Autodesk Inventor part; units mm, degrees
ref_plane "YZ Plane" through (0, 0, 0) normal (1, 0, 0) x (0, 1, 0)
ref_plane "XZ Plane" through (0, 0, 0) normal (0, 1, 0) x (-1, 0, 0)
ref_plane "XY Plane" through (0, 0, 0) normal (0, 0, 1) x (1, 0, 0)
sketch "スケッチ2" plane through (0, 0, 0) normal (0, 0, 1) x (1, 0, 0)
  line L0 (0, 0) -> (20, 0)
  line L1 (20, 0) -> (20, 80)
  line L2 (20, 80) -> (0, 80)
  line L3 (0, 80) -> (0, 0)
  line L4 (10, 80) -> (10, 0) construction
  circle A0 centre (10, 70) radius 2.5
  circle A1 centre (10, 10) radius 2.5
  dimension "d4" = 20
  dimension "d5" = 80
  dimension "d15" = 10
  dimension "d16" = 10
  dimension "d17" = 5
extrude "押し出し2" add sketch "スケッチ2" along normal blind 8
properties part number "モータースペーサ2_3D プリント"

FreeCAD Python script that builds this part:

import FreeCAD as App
import Part
import Sketcher
Q = App.Units.Quantity

doc = App.newDocument("Part")
params = doc.addObject("Spreadsheet::Sheet", "Params")
for row, (alias, value) in enumerate([
    ("sketch1_diameter", "5 mm"),
    ("sketch1_width", "20 mm"),
    ("sketch1_height", "80 mm"),
    ("pad1_length", "8 mm"),
], start=1):
    params.set(f"A{row}", alias)
    params.set(f"B{row}", "=" + value)
    params.setAlias(f"B{row}", alias)

body = doc.addObject("PartDesign::Body", "Body")

sketch1 = doc.addObject("Sketcher::SketchObject", "Sketch")
body.addObject(sketch1)
sketch1.AttachmentSupport = (doc.XY_Plane, [""])
sketch1.MapMode = "FlatFace"
sketch1.addGeometry([
    Part.LineSegment(App.Vector(0, 80, 0), App.Vector(0, 0, 0)),
    Part.LineSegment(App.Vector(0, 0, 0), App.Vector(20, 0, 0)),
    Part.LineSegment(App.Vector(20, 0, 0), App.Vector(20, 80, 0)),
    Part.LineSegment(App.Vector(20, 80, 0), App.Vector(0, 80, 0)),
    Part.Circle(App.Vector(10, 10, 0), App.Vector(0, 0, 1), 2.5),
    Part.Circle(App.Vector(10, 70, 0), App.Vector(0, 0, 1), 2.5),
], False)
sketch1.addConstraint([
    Sketcher.Constraint("Coincident", 0, 2, 1, 1),
    Sketcher.Constraint("Coincident", 1, 2, 2, 1),
    Sketcher.Constraint("Coincident", 2, 2, 3, 1),
    Sketcher.Constraint("Coincident", 3, 2, 0, 1),
    Sketcher.Constraint("Vertical", 0),
    Sketcher.Constraint("Horizontal", 1),
    Sketcher.Constraint("Vertical", 2),
    Sketcher.Constraint("Horizontal", 3),
    Sketcher.Constraint("Coincident", 0, 2, -1, 1),
    Sketcher.Constraint("Equal", 4, 5),
    Sketcher.Constraint("Vertical", 4, 3, 5, 3),
    Sketcher.Constraint("Diameter", 4, Q("5 mm")),
    Sketcher.Constraint("DistanceX", 1, 1, 1, 2, Q("20 mm")),
    Sketcher.Constraint("DistanceY", 0, 2, 0, 1, Q("80 mm")),
    Sketcher.Constraint("DistanceX", -1, 1, 4, 3, Q("10 mm")),
    Sketcher.Constraint("DistanceY", -1, 1, 4, 3, Q("10 mm")),
    Sketcher.Constraint("DistanceY", 5, 3, 2, 2, Q("10 mm")),
])
sketch1.setExpression("Constraints[11]", "Params.sketch1_diameter")
sketch1.setExpression("Constraints[12]", "Params.sketch1_width")
sketch1.setExpression("Constraints[13]", "Params.sketch1_height")
pad1 = doc.addObject("PartDesign::Pad", "Pad")
body.addObject(pad1)
pad1.Profile = sketch1
pad1.setExpression("Length", "Params.pad1_length")

doc.recompute()
